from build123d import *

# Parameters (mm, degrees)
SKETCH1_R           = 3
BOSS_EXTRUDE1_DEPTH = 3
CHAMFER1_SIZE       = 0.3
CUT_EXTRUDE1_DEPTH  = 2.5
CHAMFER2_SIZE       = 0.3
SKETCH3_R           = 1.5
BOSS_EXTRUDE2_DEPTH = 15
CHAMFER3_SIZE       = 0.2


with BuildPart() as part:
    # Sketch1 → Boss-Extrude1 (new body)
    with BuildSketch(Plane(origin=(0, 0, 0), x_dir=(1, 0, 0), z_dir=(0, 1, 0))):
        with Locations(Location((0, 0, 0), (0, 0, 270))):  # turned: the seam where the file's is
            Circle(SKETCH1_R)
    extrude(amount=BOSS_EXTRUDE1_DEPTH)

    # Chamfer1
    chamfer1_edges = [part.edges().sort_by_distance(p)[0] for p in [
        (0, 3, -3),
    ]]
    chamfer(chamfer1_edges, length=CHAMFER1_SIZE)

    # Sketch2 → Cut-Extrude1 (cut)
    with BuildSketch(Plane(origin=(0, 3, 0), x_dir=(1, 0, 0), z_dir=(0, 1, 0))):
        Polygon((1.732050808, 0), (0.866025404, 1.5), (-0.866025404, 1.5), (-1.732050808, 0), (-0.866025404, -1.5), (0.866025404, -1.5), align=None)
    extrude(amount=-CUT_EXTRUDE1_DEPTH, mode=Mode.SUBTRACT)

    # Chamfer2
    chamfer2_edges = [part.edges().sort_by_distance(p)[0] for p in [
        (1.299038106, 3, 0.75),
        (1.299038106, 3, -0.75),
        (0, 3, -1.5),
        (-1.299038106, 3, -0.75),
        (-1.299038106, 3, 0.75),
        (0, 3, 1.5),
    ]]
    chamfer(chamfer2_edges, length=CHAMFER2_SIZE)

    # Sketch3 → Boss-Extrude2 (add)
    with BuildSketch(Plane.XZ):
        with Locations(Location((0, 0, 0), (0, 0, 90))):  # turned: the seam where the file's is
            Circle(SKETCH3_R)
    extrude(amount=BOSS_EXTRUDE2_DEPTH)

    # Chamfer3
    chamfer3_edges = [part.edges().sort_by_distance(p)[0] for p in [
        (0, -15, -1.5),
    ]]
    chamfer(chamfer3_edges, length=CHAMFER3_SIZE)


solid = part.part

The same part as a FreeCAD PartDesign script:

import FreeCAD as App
import Part
import Sketcher
from FreeCAD import Vector
Q = App.Units.Quantity


def edges_at(feature, points):
    """Names of the edges that pass closest to the given points."""
    edges = feature.Shape.Edges
    near = lambda p: min(range(len(edges)), key=lambda i: edges[i].distToShape(Part.Vertex(*p))[0])
    return sorted({f"Edge{near(p) + 1}" for p in points})


def add_polygon(sketch, points):
    """Adds a closed chain of lines whose ends are joined by coincident constraints."""
    first, n = sketch.GeometryCount, len(points)
    for a, b in zip(points, points[1:] + points[:1]):
        sketch.addGeometry(Part.LineSegment(App.Vector(*a, 0), App.Vector(*b, 0)), False)
    for i in range(n):
        sketch.addConstraint(Sketcher.Constraint("Coincident", first + i, 2, first + (i + 1) % n, 1))

doc = App.newDocument("Part")
body = doc.addObject("PartDesign::Body", "Body")

sketch1 = body.newObject("Sketcher::SketchObject", "Sketch")
sketch1.AttachmentSupport = (doc.getObject("XZ_Plane"), [""])
sketch1.MapMode = "FlatFace"
sketch1.addGeometry(Part.Circle(Vector(0, 0, 0), Vector(0, 0, 1), 3), False)
sketch1.addConstraint([
    Sketcher.Constraint("Coincident", 0, 3, -1, 1),
    Sketcher.Constraint("Diameter", 0, 6.0),
])
pad1 = body.newObject("PartDesign::Pad", "Pad")
pad1.Profile = sketch1
pad1.Length = 3
pad1.Reversed = True
doc.recompute()

chamfer = body.newObject("PartDesign::Chamfer", "Chamfer")
chamfer.Base = (pad1, edges_at(pad1, [(0, 3, -3)]))
chamfer.Size = 0.3

sketch2 = body.newObject("Sketcher::SketchObject", "Sketch001")
sketch2.AttachmentSupport = (doc.getObject("XZ_Plane"), [""])
sketch2.MapMode = "FlatFace"
sketch2.AttachmentOffset = App.Placement(Vector(0, 0, -3), App.Rotation())
add_polygon(sketch2, [(1.732051, 0), (0.866025, -1.5), (-0.866025, -1.5), (-1.732051, 0), (-0.866025, 1.5), (0.866025, 1.5)])
sketch2.addConstraint([
    Sketcher.Constraint("Horizontal", 1),
    Sketcher.Constraint("Horizontal", 4),
    Sketcher.Constraint("Symmetric", 0, 2, 3, 2, -1, 1),
    Sketcher.Constraint("Symmetric", 2, 2, 5, 2, -1, 1),
    Sketcher.Constraint("PointOnObject", 2, 2, -1),
    Sketcher.Constraint("Parallel", 2, 5),
    Sketcher.Constraint("Vertical", 1, 2, 3, 2),
    Sketcher.Constraint("Angle", 0, Q("-120 deg")),
    Sketcher.Constraint("DistanceY", 1, 2, 3, 2, 3.0),
    Sketcher.Constraint("DistanceX", 1, 2, 1, 1, 1.732051),
])
pocket1 = body.newObject("PartDesign::Pocket", "Pocket")
pocket1.Profile = sketch2
pocket1.Length = 2.5
pocket1.Reversed = True
doc.recompute()

chamfer2 = body.newObject("PartDesign::Chamfer", "Chamfer001")
chamfer2.Base = (pocket1, edges_at(pocket1, [
    (1.299, 3, 0.75),
    (1.299, 3, -0.75),
    (0, 3, -1.5),
    (-1.299, 3, -0.75),
    (-1.299, 3, 0.75),
    (0, 3, 1.5),
]))
chamfer2.Size = 0.3

sketch3 = body.newObject("Sketcher::SketchObject", "Sketch002")
sketch3.AttachmentSupport = (doc.getObject("XZ_Plane"), [""])
sketch3.MapMode = "FlatFace"
sketch3.addGeometry(Part.Circle(Vector(0, 0, 0), Vector(0, 0, 1), 1.5), False)
sketch3.addConstraint([
    Sketcher.Constraint("Coincident", 0, 3, -1, 1),
    Sketcher.Constraint("Diameter", 0, 3.0),
])
pad2 = body.newObject("PartDesign::Pad", "Pad001")
pad2.Profile = sketch3
pad2.Length = 15
doc.recompute()

chamfer3 = body.newObject("PartDesign::Chamfer", "Chamfer002")
chamfer3.Base = (pad2, edges_at(pad2, [(0, -15, -1.5)]))
chamfer3.Size = 0.2

doc.recompute()
